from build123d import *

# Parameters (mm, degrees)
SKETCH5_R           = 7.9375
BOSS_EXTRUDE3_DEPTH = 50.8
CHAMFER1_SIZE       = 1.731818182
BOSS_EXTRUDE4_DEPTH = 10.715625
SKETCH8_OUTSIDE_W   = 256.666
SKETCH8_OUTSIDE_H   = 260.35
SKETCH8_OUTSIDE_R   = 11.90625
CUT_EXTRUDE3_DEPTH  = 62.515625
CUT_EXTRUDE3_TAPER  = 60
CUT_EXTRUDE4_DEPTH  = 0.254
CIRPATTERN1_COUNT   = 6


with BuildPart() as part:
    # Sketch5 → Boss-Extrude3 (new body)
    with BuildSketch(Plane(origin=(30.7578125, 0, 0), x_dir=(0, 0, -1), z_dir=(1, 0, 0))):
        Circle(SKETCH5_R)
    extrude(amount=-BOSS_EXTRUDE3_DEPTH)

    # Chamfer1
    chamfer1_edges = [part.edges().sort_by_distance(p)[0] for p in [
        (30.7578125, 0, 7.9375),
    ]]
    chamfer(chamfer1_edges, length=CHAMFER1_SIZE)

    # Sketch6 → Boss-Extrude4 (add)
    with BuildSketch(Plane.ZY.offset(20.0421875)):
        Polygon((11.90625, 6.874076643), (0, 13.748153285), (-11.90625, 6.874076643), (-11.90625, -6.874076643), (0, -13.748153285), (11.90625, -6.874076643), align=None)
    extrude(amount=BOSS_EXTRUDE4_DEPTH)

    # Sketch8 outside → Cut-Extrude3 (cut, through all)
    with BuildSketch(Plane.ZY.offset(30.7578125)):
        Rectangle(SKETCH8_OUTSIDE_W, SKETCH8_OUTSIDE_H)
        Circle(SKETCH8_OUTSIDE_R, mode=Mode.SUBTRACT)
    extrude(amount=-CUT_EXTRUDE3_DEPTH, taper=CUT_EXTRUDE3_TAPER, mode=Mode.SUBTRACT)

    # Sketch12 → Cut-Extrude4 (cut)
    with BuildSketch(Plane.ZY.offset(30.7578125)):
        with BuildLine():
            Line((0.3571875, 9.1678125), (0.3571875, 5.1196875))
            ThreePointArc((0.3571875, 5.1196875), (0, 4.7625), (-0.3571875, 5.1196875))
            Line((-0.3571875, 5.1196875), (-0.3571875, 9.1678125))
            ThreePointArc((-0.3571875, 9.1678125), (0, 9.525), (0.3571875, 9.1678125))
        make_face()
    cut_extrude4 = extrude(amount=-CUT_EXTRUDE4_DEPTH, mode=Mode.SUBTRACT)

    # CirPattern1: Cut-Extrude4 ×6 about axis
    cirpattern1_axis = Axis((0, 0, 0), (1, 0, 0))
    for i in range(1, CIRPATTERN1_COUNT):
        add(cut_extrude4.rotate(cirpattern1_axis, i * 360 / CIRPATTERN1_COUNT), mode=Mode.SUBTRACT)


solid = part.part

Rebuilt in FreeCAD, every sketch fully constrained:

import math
import FreeCAD as App
import Part
import Sketcher
from FreeCAD import Vector
Q = App.Units.Quantity


def edges_at(feature, points):
    """Names of the edges that pass closest to the given points."""
    edges = feature.Shape.Edges
    near = lambda p: min(range(len(edges)), key=lambda i: edges[i].distToShape(Part.Vertex(*p))[0])
    return sorted({f"Edge{near(p) + 1}" for p in points})

doc = App.newDocument("Part")
body = doc.addObject("PartDesign::Body", "Body")

# Sketch on YZ plane
sketch1 = body.newObject("Sketcher::SketchObject", "Sketch")
sketch1.AttachmentSupport = (doc.getObject("YZ_Plane"), [""])
sketch1.MapMode = "FlatFace"
sketch1.AttachmentOffset = App.Placement(Vector(0, 0, 30.757812), App.Rotation())
sketch1.addGeometry(Part.Circle(Vector(0, 0, 0), Vector(0, 0, 1), 8), False)
sketch1.addConstraint(Sketcher.Constraint("Coincident", 0, 3, -1, 1))
sketch1.addConstraint(Sketcher.Constraint("Diameter", 0, Q("0.625 in")))
pad1 = body.newObject("PartDesign::Pad", "Pad")
pad1.Profile = sketch1
pad1.Length = Q("2 in")
pad1.Reversed = True
doc.recompute()

chamfer = body.newObject("PartDesign::Chamfer", "Chamfer")
chamfer.Base = (pad1, edges_at(pad1, [(30.758, 0, 7.938)]))
chamfer.Size = 1.731818

# Sketch on YZ plane
sketch2 = body.newObject("Sketcher::SketchObject", "Sketch001")
sketch2.AttachmentSupport = (doc.getObject("YZ_Plane"), [""])
sketch2.MapMode = "FlatFace"
sketch2.AttachmentOffset = App.Placement(Vector(0, 0, -20.042188), App.Rotation())
sketch2.addGeometry(Part.LineSegment(Vector(7, 12, 0), Vector(14, 0, 0)), False)
sketch2.addGeometry(Part.LineSegment(Vector(14, 0, 0), Vector(7, -12, 0)), False)
sketch2.addGeometry(Part.LineSegment(Vector(7, -12, 0), Vector(-7, -12, 0)), False)
sketch2.addGeometry(Part.LineSegment(Vector(-7, -12, 0), Vector(-14, 0, 0)), False)
sketch2.addGeometry(Part.LineSegment(Vector(-14, 0, 0), Vector(-7, 12, 0)), False)
sketch2.addGeometry(Part.LineSegment(Vector(-7, 12, 0), Vector(7, 12, 0)), False)
sketch2.addConstraint(Sketcher.Constraint("Coincident", 0, 2, 1, 1))
sketch2.addConstraint(Sketcher.Constraint("Coincident", 1, 2, 2, 1))
sketch2.addConstraint(Sketcher.Constraint("Coincident", 2, 2, 3, 1))
sketch2.addConstraint(Sketcher.Constraint("Coincident", 3, 2, 4, 1))
sketch2.addConstraint(Sketcher.Constraint("Coincident", 4, 2, 5, 1))
sketch2.addConstraint(Sketcher.Constraint("Coincident", 5, 2, 0, 1))
sketch2.addConstraint(Sketcher.Constraint("Horizontal", 2))
sketch2.addConstraint(Sketcher.Constraint("Horizontal", 5))
sketch2.addConstraint(Sketcher.Constraint("Symmetric", 0, 2, 3, 2, -1, 1))
sketch2.addConstraint(Sketcher.Constraint("Symmetric", 1, 2, 4, 2, -1, 1))
sketch2.addConstraint(Sketcher.Constraint("PointOnObject", 0, 2, -1))
sketch2.addConstraint(Sketcher.Constraint("Parallel", 0, 3))
sketch2.addConstraint(Sketcher.Constraint("Vertical", 2, 2, 4, 2))
sketch2.addConstraint(Sketcher.Constraint("Angle", 0, Q("-60 deg")))
sketch2.addConstraint(Sketcher.Constraint("DistanceY", 1, 2, -1, 1, Q("0.46875 in")))
sketch2.addConstraint(Sketcher.Constraint("DistanceX", 2, 2, 2, 1, 13.748153))
pad2 = body.newObject("PartDesign::Pad", "Pad001")
pad2.Profile = sketch2
pad2.Length = Q("0.421875 in")
pad2.Reversed = True

# Sketch on YZ plane
sketch3 = body.newObject("Sketcher::SketchObject", "Sketch002")
sketch3.AttachmentSupport = (doc.getObject("YZ_Plane"), [""])
sketch3.MapMode = "FlatFace"
sketch3.AttachmentOffset = App.Placement(Vector(0, 0, -30.757812), App.Rotation())
sketch3.addGeometry(Part.LineSegment(Vector(130, -128, 0), Vector(-130, -128, 0)), False)
sketch3.addGeometry(Part.LineSegment(Vector(-130, -128, 0), Vector(-130, 128, 0)), False)
sketch3.addGeometry(Part.LineSegment(Vector(-130, 128, 0), Vector(130, 128, 0)), False)
sketch3.addGeometry(Part.LineSegment(Vector(130, 128, 0), Vector(130, -128, 0)), False)
sketch3.addGeometry(Part.Circle(Vector(0, 0, 0), Vector(0, 0, 1), 12), False)
sketch3.addConstraint(Sketcher.Constraint("Coincident", 0, 2, 1, 1))
sketch3.addConstraint(Sketcher.Constraint("Coincident", 1, 2, 2, 1))
sketch3.addConstraint(Sketcher.Constraint("Coincident", 2, 2, 3, 1))
sketch3.addConstraint(Sketcher.Constraint("Coincident", 3, 2, 0, 1))
sketch3.addConstraint(Sketcher.Constraint("Horizontal", 0))
sketch3.addConstraint(Sketcher.Constraint("Vertical", 1))
sketch3.addConstraint(Sketcher.Constraint("Horizontal", 2))
sketch3.addConstraint(Sketcher.Constraint("Vertical", 3))
sketch3.addConstraint(Sketcher.Constraint("Coincident", 4, 3, -1, 1))
sketch3.addConstraint(Sketcher.Constraint("Symmetric", 0, 2, 2, 2, -1, 1))
sketch3.addConstraint(Sketcher.Constraint("Diameter", 4, Q("0.9375 in")))
sketch3.addConstraint(Sketcher.Constraint("DistanceX", 0, 2, 0, 1, Q("10.25 in")))
sketch3.addConstraint(Sketcher.Constraint("DistanceY", 1, 1, 1, 2, 256.666))
pocket1 = body.newObject("PartDesign::Pocket", "Pocket")
pocket1.Profile = sketch3
pocket1.Length = 62.515625
pocket1.Reversed = True
pocket1.TaperAngle = 60

# Sketch on YZ plane
sketch4 = body.newObject("Sketcher::SketchObject", "Sketch003")
sketch4.AttachmentSupport = (doc.getObject("YZ_Plane"), [""])
sketch4.MapMode = "FlatFace"
sketch4.AttachmentOffset = App.Placement(Vector(0, 0, -30.757812), App.Rotation())
sketch4.addGeometry(Part.LineSegment(Vector(5.12, 0.36, 0), Vector(9.17, 0.36, 0)), False)
sketch4.addGeometry(Part.ArcOfCircle(Part.Circle(Vector(9.17, 0, 0), Vector(0, 0, 1), 0.36), math.radians(-90), math.radians(90)), False)
sketch4.addGeometry(Part.LineSegment(Vector(9.17, -0.36, 0), Vector(5.12, -0.36, 0)), False)
sketch4.addGeometry(Part.ArcOfCircle(Part.Circle(Vector(5.12, 0, 0), Vector(0, 0, 1), 0.36), math.radians(90), math.radians(270)), False)
sketch4.addConstraint(Sketcher.Constraint("Tangent", 0, 2, 1, 2))
sketch4.addConstraint(Sketcher.Constraint("Tangent", 1, 1, 2, 1))
sketch4.addConstraint(Sketcher.Constraint("Tangent", 2, 2, 3, 2))
sketch4.addConstraint(Sketcher.Constraint("Tangent", 3, 1, 0, 1))
sketch4.addConstraint(Sketcher.Constraint("Horizontal", 0))
sketch4.addConstraint(Sketcher.Constraint("Horizontal", 2))
sketch4.addConstraint(Sketcher.Constraint("PointOnObject", 1, 3, -1))
sketch4.addConstraint(Sketcher.Constraint("Radius", 1, 0.357187))
sketch4.addConstraint(Sketcher.Constraint("DistanceX", 0, 1, 0, 2, 4.048125))
sketch4.addConstraint(Sketcher.Constraint("DistanceX", -1, 1, 1, 3, 9.167813))
pocket2 = body.newObject("PartDesign::Pocket", "Pocket001")
pocket2.Profile = sketch4
pocket2.Length = Q("0.01 in")
pocket2.Reversed = True
doc.recompute()

polarpattern = body.newObject("PartDesign::PolarPattern", "PolarPattern")
polarpattern.Originals = [pocket2]
polarpattern.Axis = (doc.getObject("X_Axis"), [""])
polarpattern.Angle = 360
polarpattern.Occurrences = 6
body.Tip = polarpattern

doc.recompute()
